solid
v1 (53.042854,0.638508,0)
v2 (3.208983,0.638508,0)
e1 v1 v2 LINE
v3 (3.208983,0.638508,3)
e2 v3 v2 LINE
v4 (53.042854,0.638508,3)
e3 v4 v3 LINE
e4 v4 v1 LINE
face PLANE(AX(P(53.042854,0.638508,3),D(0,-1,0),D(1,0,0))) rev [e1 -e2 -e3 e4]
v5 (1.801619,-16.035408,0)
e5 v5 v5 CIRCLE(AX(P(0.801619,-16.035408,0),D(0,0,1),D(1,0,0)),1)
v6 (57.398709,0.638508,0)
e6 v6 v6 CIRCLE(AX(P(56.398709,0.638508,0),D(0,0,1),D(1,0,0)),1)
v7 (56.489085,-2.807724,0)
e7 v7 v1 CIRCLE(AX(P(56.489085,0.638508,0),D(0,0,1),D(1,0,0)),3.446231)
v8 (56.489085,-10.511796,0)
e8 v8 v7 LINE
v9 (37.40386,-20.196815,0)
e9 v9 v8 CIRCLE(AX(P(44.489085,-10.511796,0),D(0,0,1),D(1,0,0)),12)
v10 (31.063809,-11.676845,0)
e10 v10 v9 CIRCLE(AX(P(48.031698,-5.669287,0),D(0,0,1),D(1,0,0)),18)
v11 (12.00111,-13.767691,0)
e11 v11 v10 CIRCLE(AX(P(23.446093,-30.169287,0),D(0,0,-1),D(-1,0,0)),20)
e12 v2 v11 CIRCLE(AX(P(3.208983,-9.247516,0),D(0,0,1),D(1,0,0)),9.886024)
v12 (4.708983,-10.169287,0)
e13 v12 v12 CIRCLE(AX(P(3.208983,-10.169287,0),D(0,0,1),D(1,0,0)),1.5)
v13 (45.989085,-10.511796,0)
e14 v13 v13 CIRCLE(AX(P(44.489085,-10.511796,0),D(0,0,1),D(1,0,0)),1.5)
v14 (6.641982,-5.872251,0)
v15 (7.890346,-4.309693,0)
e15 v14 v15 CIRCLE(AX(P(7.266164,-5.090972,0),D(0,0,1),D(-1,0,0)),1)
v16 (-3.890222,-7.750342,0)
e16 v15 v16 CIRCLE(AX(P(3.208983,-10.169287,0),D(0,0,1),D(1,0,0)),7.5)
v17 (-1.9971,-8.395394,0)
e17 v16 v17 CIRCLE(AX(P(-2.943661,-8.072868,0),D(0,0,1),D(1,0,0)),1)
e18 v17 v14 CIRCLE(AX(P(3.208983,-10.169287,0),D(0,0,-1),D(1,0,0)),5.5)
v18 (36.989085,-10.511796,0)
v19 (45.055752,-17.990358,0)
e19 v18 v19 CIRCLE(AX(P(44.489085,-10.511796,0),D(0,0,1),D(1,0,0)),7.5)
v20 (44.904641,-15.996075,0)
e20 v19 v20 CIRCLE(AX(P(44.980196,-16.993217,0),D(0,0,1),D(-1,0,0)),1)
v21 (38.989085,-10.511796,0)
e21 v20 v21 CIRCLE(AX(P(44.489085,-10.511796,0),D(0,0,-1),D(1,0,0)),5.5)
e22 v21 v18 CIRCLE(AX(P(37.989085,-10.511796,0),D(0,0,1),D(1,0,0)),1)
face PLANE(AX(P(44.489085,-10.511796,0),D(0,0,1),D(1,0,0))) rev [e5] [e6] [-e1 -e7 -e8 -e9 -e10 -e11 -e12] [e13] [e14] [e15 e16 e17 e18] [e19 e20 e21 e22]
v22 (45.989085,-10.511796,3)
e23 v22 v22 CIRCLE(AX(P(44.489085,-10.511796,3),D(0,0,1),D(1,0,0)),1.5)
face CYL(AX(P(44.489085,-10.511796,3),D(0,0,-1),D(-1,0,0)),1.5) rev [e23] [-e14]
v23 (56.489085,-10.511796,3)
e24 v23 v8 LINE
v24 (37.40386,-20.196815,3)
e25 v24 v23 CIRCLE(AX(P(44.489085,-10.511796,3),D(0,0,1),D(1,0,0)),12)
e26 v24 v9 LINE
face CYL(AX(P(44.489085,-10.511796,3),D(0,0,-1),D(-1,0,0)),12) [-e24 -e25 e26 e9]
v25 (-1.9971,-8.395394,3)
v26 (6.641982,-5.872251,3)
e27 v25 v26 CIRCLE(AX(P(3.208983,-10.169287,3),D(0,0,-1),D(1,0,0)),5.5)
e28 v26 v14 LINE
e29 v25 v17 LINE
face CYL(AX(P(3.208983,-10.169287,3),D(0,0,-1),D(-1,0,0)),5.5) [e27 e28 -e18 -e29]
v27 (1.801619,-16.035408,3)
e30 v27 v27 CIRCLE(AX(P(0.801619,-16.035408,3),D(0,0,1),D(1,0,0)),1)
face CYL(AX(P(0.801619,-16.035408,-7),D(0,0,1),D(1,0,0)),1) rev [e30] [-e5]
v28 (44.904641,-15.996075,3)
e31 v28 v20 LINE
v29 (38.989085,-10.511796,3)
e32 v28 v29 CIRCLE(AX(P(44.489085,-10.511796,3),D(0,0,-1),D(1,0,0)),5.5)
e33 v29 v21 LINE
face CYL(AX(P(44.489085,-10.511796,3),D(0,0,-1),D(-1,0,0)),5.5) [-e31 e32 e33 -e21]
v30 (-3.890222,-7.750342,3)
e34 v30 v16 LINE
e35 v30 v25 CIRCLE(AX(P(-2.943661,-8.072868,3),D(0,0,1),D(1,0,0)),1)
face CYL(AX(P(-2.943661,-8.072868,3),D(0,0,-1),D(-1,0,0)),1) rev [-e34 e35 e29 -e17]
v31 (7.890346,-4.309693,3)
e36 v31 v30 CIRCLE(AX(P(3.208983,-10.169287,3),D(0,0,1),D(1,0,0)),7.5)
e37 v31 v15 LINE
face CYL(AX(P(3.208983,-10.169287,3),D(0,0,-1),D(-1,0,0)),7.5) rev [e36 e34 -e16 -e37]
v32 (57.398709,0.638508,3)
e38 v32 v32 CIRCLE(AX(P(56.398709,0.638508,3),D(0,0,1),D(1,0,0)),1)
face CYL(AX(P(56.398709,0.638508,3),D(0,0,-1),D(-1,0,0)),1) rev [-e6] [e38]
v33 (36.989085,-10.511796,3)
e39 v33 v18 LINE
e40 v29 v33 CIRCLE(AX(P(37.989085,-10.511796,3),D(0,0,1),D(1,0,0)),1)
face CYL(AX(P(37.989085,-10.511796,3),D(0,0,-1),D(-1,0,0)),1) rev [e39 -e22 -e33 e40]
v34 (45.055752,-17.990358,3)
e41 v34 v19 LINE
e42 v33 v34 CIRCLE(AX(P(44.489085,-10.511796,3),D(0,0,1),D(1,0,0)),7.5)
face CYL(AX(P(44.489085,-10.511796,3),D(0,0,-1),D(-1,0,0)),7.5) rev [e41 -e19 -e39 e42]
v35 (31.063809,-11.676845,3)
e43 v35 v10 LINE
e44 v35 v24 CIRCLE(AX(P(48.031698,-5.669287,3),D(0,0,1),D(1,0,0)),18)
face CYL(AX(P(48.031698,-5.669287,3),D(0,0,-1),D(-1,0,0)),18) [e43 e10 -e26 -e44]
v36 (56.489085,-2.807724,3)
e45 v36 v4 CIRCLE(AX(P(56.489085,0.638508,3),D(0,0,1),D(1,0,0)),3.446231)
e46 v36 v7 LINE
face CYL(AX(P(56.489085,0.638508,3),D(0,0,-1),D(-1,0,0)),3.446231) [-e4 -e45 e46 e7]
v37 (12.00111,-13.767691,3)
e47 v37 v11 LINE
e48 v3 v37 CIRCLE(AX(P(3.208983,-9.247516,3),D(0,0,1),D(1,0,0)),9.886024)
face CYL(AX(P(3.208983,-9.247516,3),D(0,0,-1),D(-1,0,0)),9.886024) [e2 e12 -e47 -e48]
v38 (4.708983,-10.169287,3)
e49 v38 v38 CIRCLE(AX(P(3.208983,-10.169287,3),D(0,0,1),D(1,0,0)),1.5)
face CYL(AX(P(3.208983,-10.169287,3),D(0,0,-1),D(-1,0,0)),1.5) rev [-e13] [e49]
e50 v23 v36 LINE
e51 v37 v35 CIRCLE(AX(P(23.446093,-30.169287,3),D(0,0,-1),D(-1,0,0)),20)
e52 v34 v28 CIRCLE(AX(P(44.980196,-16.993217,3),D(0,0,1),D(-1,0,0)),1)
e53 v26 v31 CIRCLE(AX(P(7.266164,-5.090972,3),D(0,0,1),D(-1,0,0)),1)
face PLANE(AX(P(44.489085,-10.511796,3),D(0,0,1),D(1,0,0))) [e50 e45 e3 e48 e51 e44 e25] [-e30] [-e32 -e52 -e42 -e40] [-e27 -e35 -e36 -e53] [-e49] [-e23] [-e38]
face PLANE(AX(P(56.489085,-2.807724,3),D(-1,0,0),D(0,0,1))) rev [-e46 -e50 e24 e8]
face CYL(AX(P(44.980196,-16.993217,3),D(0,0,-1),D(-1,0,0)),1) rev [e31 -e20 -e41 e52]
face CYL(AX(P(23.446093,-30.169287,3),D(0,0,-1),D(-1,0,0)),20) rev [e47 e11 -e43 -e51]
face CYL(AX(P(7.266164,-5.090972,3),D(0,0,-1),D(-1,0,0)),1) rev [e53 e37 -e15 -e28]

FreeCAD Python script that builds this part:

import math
import FreeCAD as App
import Part
import Sketcher
Q = App.Units.Quantity

doc = App.newDocument("Part")
body = doc.addObject("PartDesign::Body", "Body")

sketch1 = body.newObject("Sketcher::SketchObject", "Sketch")
sketch1.AttachmentSupport = (doc.getObject("XY_Plane"), [""])
sketch1.MapMode = "FlatFace"
sketch1.addGeometry([
    Part.LineSegment(App.Vector(56.5, -10.5, 0), App.Vector(56.5, -2.8, 0)),
    Part.ArcOfCircle(Part.Circle(App.Vector(56.5, 0.6, 0), App.Vector(0, 0, 1), 3.4), math.radians(-90), math.radians(180)),
    Part.LineSegment(App.Vector(53, 0.6, 0), App.Vector(3.2, 0.6, 0)),
    Part.ArcOfCircle(Part.Circle(App.Vector(3.2, -9.2, 0), App.Vector(0, 0, 1), 9.9), math.radians(90), math.radians(333)),
    Part.ArcOfCircle(Part.Circle(App.Vector(23.4, -30.2, 0), App.Vector(0, 0, 1), 20), math.radians(68), math.radians(125)),
    Part.ArcOfCircle(Part.Circle(App.Vector(48, -5.7, 0), App.Vector(0, 0, 1), 18), math.radians(-161), math.radians(-126)),
    Part.ArcOfCircle(Part.Circle(App.Vector(44.5, -10.5, 0), App.Vector(0, 0, 1), 12), math.radians(-126), math.radians(0)),
    Part.ArcOfCircle(Part.Circle(App.Vector(44.5, -10.5, 0), App.Vector(0, 0, 1), 5.5), math.radians(180), math.radians(274)),
    Part.ArcOfCircle(Part.Circle(App.Vector(45, -17, 0), App.Vector(0, 0, 1), 1), math.radians(-86), math.radians(94)),
    Part.ArcOfCircle(Part.Circle(App.Vector(44.5, -10.5, 0), App.Vector(0, 0, 1), 7.5), math.radians(180), math.radians(274)),
    Part.ArcOfCircle(Part.Circle(App.Vector(38, -10.5, 0), App.Vector(0, 0, 1), 1), math.radians(0), math.radians(180)),
    Part.Circle(App.Vector(44.5, -10.5, 0), App.Vector(0, 0, 1), 1.5),
    Part.Circle(App.Vector(3.2, -10.2, 0), App.Vector(0, 0, 1), 1.5),
    Part.Circle(App.Vector(56.4, 0.6, 0), App.Vector(0, 0, 1), 1),
    Part.ArcOfCircle(Part.Circle(App.Vector(3.2, -10.2, 0), App.Vector(0, 0, 1), 5.5), math.radians(51), math.radians(161)),
    Part.ArcOfCircle(Part.Circle(App.Vector(-2.9, -8.1, 0), App.Vector(0, 0, 1), 1), math.radians(161), math.radians(341)),
    Part.ArcOfCircle(Part.Circle(App.Vector(3.2, -10.2, 0), App.Vector(0, 0, 1), 7.5), math.radians(51), math.radians(161)),
    Part.ArcOfCircle(Part.Circle(App.Vector(7.3, -5.1, 0), App.Vector(0, 0, 1), 1), math.radians(-129), math.radians(51)),
], False)
sketch1.addConstraint([
    Sketcher.Constraint("Coincident", 0, 2, 1, 1),
    Sketcher.Constraint("Coincident", 1, 2, 2, 1),
    Sketcher.Constraint("Tangent", 2, 2, 3, 1),
    Sketcher.Constraint("Coincident", 3, 2, 4, 2),
    Sketcher.Constraint("Coincident", 4, 1, 5, 1),
    Sketcher.Constraint("Tangent", 5, 2, 6, 1),
    Sketcher.Constraint("Tangent", 6, 2, 0, 1),
    Sketcher.Constraint("Tangent", 7, 2, 8, 2),
    Sketcher.Constraint("Tangent", 8, 1, 9, 2),
    Sketcher.Constraint("Tangent", 9, 1, 10, 2),
    Sketcher.Constraint("Tangent", 10, 1, 7, 1),
    Sketcher.Constraint("Tangent", 14, 2, 15, 2),
    Sketcher.Constraint("Tangent", 15, 1, 16, 2),
    Sketcher.Constraint("Tangent", 16, 1, 17, 2),
    Sketcher.Constraint("Tangent", 17, 1, 14, 1),
    Sketcher.Constraint("Vertical", 0),
    Sketcher.Constraint("Horizontal", 2),
    Sketcher.Constraint("Coincident", 7, 3, 6, 3),
    Sketcher.Constraint("Coincident", 9, 3, 6, 3),
    Sketcher.Constraint("Coincident", 11, 3, 6, 3),
    Sketcher.Constraint("Coincident", 14, 3, 12, 3),
    Sketcher.Constraint("Coincident", 16, 3, 12, 3),
    Sketcher.Constraint("Equal", 11, 12),
    Sketcher.Constraint("Equal", 10, 13),
    Sketcher.Constraint("Equal", 7, 14),
    Sketcher.Constraint("Equal", 13, 15),
    Sketcher.Constraint("Horizontal", 9, 3, 10, 3),
    Sketcher.Constraint("Horizontal", 1, 3, 13, 3),
    Sketcher.Constraint("Horizontal", 13, 3, 1, 2),
    Sketcher.Constraint("Vertical", 3, 3, 12, 3),
    Sketcher.Constraint("Vertical", 1, 3, 0, 2),
    Sketcher.Constraint("Diameter", 11, Q("3 mm")),
    Sketcher.Constraint("Diameter", 13, Q("2 mm")),
    Sketcher.Constraint("Radius", 4, Q("20 mm")),
    Sketcher.Constraint("Radius", 5, Q("18 mm")),
    Sketcher.Constraint("Radius", 6, Q("12 mm")),
    Sketcher.Constraint("Radius", 7, Q("5.5 mm")),
    Sketcher.Constraint("DistanceY", 4, 3, 12, 3, Q("20 mm")),
    Sketcher.Constraint("DistanceY", 4, 3, 5, 3, Q("24.5 mm")),
    Sketcher.Constraint("Radius", 1, Q("3.446231 mm")),
    Sketcher.Constraint("Radius", 3, Q("9.886024 mm")),
    Sketcher.Constraint("DistanceX", 3, 3, 17, 1, Q("3.432999 mm")),
    Sketcher.Constraint("DistanceX", 2, 2, 2, 1, Q("49.833871 mm")),
    Sketcher.Constraint("DistanceX", 14, 2, -1, 1, Q("1.9971 mm")),
    Sketcher.Constraint("DistanceX", 8, 3, 5, 3, Q("3.051502 mm")),
    Sketcher.Constraint("DistanceY", 5, 2, 8, 3, Q("3.203598 mm")),
    Sketcher.Constraint("DistanceY", 16, 1, 2, 2, Q("4.9482 mm")),
    Sketcher.Constraint("DistanceX", -1, 1, 13, 3, Q("56.398709 mm")),
    Sketcher.Constraint("DistanceX", 15, 3, -1, 1, Q("2.943661 mm")),
    Sketcher.Constraint("DistanceY", 15, 3, -1, 1, Q("8.072868 mm")),
    Sketcher.Constraint("DistanceX", -1, 1, 3, 2, Q("12.00111 mm")),
])
pad1 = body.newObject("PartDesign::Pad", "Pad")
pad1.Profile = sketch1
pad1.Length = 3

sketch2 = body.newObject("Sketcher::SketchObject", "Sketch001")
sketch2.AttachmentSupport = (doc.getObject("XY_Plane"), [""])
sketch2.MapMode = "FlatFace"
sketch2.AttachmentOffset = App.Placement(App.Vector(0, 0, 3), App.Rotation())
sketch2.addGeometry(Part.Circle(App.Vector(0.8, -16, 0), App.Vector(0, 0, 1), 1), False)
sketch2.addConstraint([
    Sketcher.Constraint("Diameter", 0, Q("2 mm")),
    Sketcher.Constraint("DistanceX", -1, 1, 0, 3, Q("0.801619 mm")),
    Sketcher.Constraint("DistanceY", 0, 3, -1, 1, Q("16.035408 mm")),
])
pocket1 = body.newObject("PartDesign::Pocket", "Pocket")
pocket1.Profile = sketch2
pocket1.Length = 10

doc.recompute()
